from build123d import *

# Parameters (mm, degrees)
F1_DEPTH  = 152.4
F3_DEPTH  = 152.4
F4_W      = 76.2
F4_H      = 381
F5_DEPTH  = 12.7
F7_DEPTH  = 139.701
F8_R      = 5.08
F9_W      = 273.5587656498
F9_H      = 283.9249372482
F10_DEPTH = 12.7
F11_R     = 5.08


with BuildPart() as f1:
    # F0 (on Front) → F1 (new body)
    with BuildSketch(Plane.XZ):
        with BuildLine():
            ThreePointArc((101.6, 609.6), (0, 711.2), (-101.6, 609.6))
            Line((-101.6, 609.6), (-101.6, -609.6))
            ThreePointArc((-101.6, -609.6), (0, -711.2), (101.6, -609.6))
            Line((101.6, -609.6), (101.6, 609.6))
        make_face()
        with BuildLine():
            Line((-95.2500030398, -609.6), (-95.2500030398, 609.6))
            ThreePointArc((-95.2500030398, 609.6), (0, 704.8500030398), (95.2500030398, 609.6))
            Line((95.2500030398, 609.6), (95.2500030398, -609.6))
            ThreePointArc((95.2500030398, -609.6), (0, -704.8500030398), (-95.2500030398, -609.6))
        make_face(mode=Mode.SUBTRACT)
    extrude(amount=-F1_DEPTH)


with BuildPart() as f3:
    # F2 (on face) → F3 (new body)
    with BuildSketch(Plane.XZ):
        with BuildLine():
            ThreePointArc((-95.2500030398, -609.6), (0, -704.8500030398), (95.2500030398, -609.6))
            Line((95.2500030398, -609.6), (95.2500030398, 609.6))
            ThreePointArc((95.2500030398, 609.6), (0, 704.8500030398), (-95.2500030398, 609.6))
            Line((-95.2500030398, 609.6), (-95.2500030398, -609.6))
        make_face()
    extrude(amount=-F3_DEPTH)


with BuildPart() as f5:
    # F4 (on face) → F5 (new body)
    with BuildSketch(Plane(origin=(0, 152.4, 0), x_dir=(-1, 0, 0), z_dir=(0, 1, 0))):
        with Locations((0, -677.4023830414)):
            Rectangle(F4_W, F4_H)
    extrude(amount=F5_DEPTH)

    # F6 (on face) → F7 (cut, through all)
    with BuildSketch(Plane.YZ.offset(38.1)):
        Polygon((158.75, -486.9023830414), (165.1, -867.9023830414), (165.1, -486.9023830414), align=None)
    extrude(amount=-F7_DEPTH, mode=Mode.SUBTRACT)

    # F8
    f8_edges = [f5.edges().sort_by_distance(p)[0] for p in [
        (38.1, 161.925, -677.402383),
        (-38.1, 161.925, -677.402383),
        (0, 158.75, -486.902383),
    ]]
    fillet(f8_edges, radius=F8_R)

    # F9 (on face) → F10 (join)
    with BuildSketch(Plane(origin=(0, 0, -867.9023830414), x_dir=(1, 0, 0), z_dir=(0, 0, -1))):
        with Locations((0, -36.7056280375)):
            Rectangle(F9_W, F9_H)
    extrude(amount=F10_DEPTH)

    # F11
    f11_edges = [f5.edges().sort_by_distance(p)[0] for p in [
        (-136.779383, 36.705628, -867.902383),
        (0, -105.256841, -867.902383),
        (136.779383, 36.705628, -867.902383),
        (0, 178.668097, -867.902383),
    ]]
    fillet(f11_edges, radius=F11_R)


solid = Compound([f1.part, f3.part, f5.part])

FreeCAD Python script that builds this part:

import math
import FreeCAD as App
import Part
import Sketcher
Q = App.Units.Quantity


def edges_at(feature, points):
    """Names of the edges that pass closest to the given points."""
    edges = feature.Shape.Edges
    near = lambda p: min(range(len(edges)), key=lambda i: edges[i].distToShape(Part.Vertex(*p))[0])
    return sorted({f"Edge{near(p) + 1}" for p in points})


def add_polygon(sketch, points):
    """Adds a closed chain of lines whose ends are joined by coincident constraints."""
    first, n = sketch.GeometryCount, len(points)
    for a, b in zip(points, points[1:] + points[:1]):
        sketch.addGeometry(Part.LineSegment(App.Vector(*a, 0), App.Vector(*b, 0)), False)
    for i in range(n):
        sketch.addConstraint(Sketcher.Constraint("Coincident", first + i, 2, first + (i + 1) % n, 1))

doc = App.newDocument("Part")
body = doc.addObject("PartDesign::Body", "Body")

# Sketch on XZ plane
sketch1 = doc.addObject("Sketcher::SketchObject", "Sketch")
body.addObject(sketch1)
sketch1.AttachmentSupport = (doc.XZ_Plane, [""])
sketch1.MapMode = "FlatFace"
sketch1.addGeometry([
    Part.ArcOfCircle(Part.Circle(App.Vector(0, 610, 0), App.Vector(0, 0, 1), 102), math.radians(0), math.radians(180)),  # 0
    Part.LineSegment(App.Vector(-102, 610, 0), App.Vector(-102, -610, 0)),  # 1
    Part.ArcOfCircle(Part.Circle(App.Vector(0, -610, 0), App.Vector(0, 0, 1), 102), math.radians(180), math.radians(360)),  # 2
    Part.LineSegment(App.Vector(102, -610, 0), App.Vector(102, 610, 0)),  # 3
    Part.ArcOfCircle(Part.Circle(App.Vector(0, -610, 0), App.Vector(0, 0, 1), 95), math.radians(180), math.radians(360)),  # 4
    Part.LineSegment(App.Vector(-95, -610, 0), App.Vector(-95, 610, 0)),  # 5
    Part.ArcOfCircle(Part.Circle(App.Vector(0, 610, 0), App.Vector(0, 0, 1), 95), math.radians(0), math.radians(180)),  # 6
    Part.LineSegment(App.Vector(95, 610, 0), App.Vector(95, -610, 0)),  # 7
], False)
sketch1.addConstraint([
    Sketcher.Constraint("Tangent", 0, 2, 1, 1),
    Sketcher.Constraint("Tangent", 1, 2, 2, 1),
    Sketcher.Constraint("Tangent", 2, 2, 3, 1),
    Sketcher.Constraint("Tangent", 3, 2, 0, 1),
    Sketcher.Constraint("Tangent", 4, 1, 5, 1),
    Sketcher.Constraint("Tangent", 5, 2, 6, 2),
    Sketcher.Constraint("Tangent", 6, 1, 7, 1),
    Sketcher.Constraint("Tangent", 7, 2, 4, 2),
    Sketcher.Constraint("Vertical", 1),
    Sketcher.Constraint("Vertical", 3),
    Sketcher.Constraint("Vertical", 5),
    Sketcher.Constraint("Vertical", 7),
    Sketcher.Constraint("Coincident", 4, 3, 2, 3),
    Sketcher.Constraint("Symmetric", 0, 3, 2, 3, -1, 1),
    Sketcher.Constraint("Horizontal", 6, 3, 0, 2),
    Sketcher.Constraint("Radius", 0, Q("4 in")),
    Sketcher.Constraint("DistanceY", 1, 2, 1, 1, Q("48 in")),
    Sketcher.Constraint("Radius", 4, Q("3.7500001 in")),
])
pad1 = doc.addObject("PartDesign::Pad", "Pad")
body.addObject(pad1)
pad1.Profile = sketch1
pad1.Length = Q("6 in")
pad1.Reversed = True
body2 = doc.addObject("PartDesign::Body", "Body001")

# Sketch on XZ plane
sketch2 = doc.addObject("Sketcher::SketchObject", "Sketch001")
body2.addObject(sketch2)
sketch2.AttachmentSupport = (doc.getObject("XZ_Plane001"), [""])
sketch2.MapMode = "FlatFace"
sketch2.addGeometry([
    Part.ArcOfCircle(Part.Circle(App.Vector(0, -610, 0), App.Vector(0, 0, 1), 95), math.radians(180), math.radians(360)),
    Part.LineSegment(App.Vector(95, -610, 0), App.Vector(95, 610, 0)),
    Part.ArcOfCircle(Part.Circle(App.Vector(0, 610, 0), App.Vector(0, 0, 1), 95), math.radians(0), math.radians(180)),
    Part.LineSegment(App.Vector(-95, 610, 0), App.Vector(-95, -610, 0)),
], False)
sketch2.addConstraint([
    Sketcher.Constraint("Tangent", 0, 2, 1, 1),
    Sketcher.Constraint("Tangent", 1, 2, 2, 1),
    Sketcher.Constraint("Tangent", 2, 2, 3, 1),
    Sketcher.Constraint("Tangent", 3, 2, 0, 1),
    Sketcher.Constraint("Vertical", 1),
    Sketcher.Constraint("Vertical", 3),
    Sketcher.Constraint("Symmetric", 0, 3, 2, 3, -1, 1),
    Sketcher.Constraint("DistanceY", 1, 1, 1, 2, Q("48 in")),
    Sketcher.Constraint("Radius", 0, Q("3.7500001 in")),
])
pad2 = doc.addObject("PartDesign::Pad", "Pad001")
body2.addObject(pad2)
pad2.Profile = sketch2
pad2.Length = Q("6 in")
pad2.Reversed = True
body3 = doc.addObject("PartDesign::Body", "Body002")

# Sketch on XZ plane
sketch3 = doc.addObject("Sketcher::SketchObject", "Sketch002")
body3.addObject(sketch3)
sketch3.AttachmentSupport = (doc.getObject("XZ_Plane002"), [""])
sketch3.MapMode = "FlatFace"
sketch3.AttachmentOffset = App.Placement(App.Vector(0, 0, -6 * 25.4), App.Rotation())
add_polygon(sketch3, [(38, -487), (38, -868), (-38, -868), (-38, -487)])  # lines 0-3
sketch3.addConstraint([
    Sketcher.Constraint("Vertical", 0),
    Sketcher.Constraint("Horizontal", 1),
    Sketcher.Constraint("Vertical", 2),
    Sketcher.Constraint("Horizontal", 3),
    Sketcher.Constraint("DistanceX", 1, 2, 1, 1, Q("3 in")),
    Sketcher.Constraint("DistanceY", 0, 2, 0, 1, Q("15 in")),
    Sketcher.Constraint("DistanceX", -1, 1, 0, 2, Q("1.5 in")),
    Sketcher.Constraint("DistanceY", 0, 2, -1, 1, Q("867.902383 mm")),
])
pad3 = doc.addObject("PartDesign::Pad", "Pad002")
body3.addObject(pad3)
pad3.Profile = sketch3
pad3.Length = Q("0.5 in")
pad3.Reversed = True

# Sketch on YZ plane
sketch4 = doc.addObject("Sketcher::SketchObject", "Sketch003")
body3.addObject(sketch4)
sketch4.AttachmentSupport = (doc.getObject("YZ_Plane002"), [""])
sketch4.MapMode = "FlatFace"
sketch4.AttachmentOffset = App.Placement(App.Vector(0, 0, 1.5 * 25.4), App.Rotation())
add_polygon(sketch4, [(159, -487), (165, -868), (165, -487)])  # lines 0-2
sketch4.addConstraint([
    Sketcher.Constraint("Vertical", 1),
    Sketcher.Constraint("Horizontal", 2),
    Sketcher.Constraint("DistanceY", 1, 1, 1, 2, Q("15 in")),
    Sketcher.Constraint("DistanceX", 2, 2, 2, 1, Q("0.25 in")),
    Sketcher.Constraint("DistanceX", -1, 1, 0, 2, Q("6.5 in")),
    Sketcher.Constraint("DistanceY", 0, 2, -1, 1, Q("867.902383 mm")),
])
pocket1 = doc.addObject("PartDesign::Pocket", "Pocket")
body3.addObject(pocket1)
pocket1.Profile = sketch4
pocket1.Type = "ThroughAll"
doc.recompute()

fillet = doc.addObject("PartDesign::Fillet", "Fillet")
body3.addObject(fillet)
fillet.Base = (pocket1, edges_at(pocket1, [(38.1, 161.925, -677.402), (-38.1, 161.925, -677.402), (0, 158.75, -486.902)]))
fillet.Radius = Q("0.2 in")

# Sketch on XY plane
sketch5 = doc.addObject("Sketcher::SketchObject", "Sketch004")
body3.addObject(sketch5)
sketch5.AttachmentSupport = (doc.getObject("XY_Plane002"), [""])
sketch5.MapMode = "FlatFace"
sketch5.AttachmentOffset = App.Placement(App.Vector(0, 0, -867.902383), App.Rotation())
add_polygon(sketch5, [(-137, -105), (-137, 179), (137, 179), (137, -105)])  # lines 0-3
sketch5.addConstraint([
    Sketcher.Constraint("Vertical", 0),
    Sketcher.Constraint("Horizontal", 1),
    Sketcher.Constraint("Vertical", 2),
    Sketcher.Constraint("Horizontal", 3),
    Sketcher.Constraint("DistanceX", 1, 1, 1, 2, Q("273.558766 mm")),
    Sketcher.Constraint("DistanceY", 0, 1, 0, 2, Q("283.924937 mm")),
    Sketcher.Constraint("DistanceY", 2, 2, -1, 1, Q("105.256841 mm")),
    Sketcher.Constraint("DistanceX", 0, 2, -1, 1, Q("136.779383 mm")),
])
pad4 = doc.addObject("PartDesign::Pad", "Pad003")
body3.addObject(pad4)
pad4.Profile = sketch5
pad4.Length = Q("0.5 in")
pad4.Reversed = True
doc.recompute()

fillet2 = doc.addObject("PartDesign::Fillet", "Fillet001")
body3.addObject(fillet2)
fillet2.Base = (pad4, edges_at(pad4, [
    (-136.779, 36.706, -867.902),
    (0, -105.257, -867.902),
    (136.779, 36.706, -867.902),
    (0, 178.668, -867.902),
]))
fillet2.Radius = Q("0.2 in")

doc.recompute()
